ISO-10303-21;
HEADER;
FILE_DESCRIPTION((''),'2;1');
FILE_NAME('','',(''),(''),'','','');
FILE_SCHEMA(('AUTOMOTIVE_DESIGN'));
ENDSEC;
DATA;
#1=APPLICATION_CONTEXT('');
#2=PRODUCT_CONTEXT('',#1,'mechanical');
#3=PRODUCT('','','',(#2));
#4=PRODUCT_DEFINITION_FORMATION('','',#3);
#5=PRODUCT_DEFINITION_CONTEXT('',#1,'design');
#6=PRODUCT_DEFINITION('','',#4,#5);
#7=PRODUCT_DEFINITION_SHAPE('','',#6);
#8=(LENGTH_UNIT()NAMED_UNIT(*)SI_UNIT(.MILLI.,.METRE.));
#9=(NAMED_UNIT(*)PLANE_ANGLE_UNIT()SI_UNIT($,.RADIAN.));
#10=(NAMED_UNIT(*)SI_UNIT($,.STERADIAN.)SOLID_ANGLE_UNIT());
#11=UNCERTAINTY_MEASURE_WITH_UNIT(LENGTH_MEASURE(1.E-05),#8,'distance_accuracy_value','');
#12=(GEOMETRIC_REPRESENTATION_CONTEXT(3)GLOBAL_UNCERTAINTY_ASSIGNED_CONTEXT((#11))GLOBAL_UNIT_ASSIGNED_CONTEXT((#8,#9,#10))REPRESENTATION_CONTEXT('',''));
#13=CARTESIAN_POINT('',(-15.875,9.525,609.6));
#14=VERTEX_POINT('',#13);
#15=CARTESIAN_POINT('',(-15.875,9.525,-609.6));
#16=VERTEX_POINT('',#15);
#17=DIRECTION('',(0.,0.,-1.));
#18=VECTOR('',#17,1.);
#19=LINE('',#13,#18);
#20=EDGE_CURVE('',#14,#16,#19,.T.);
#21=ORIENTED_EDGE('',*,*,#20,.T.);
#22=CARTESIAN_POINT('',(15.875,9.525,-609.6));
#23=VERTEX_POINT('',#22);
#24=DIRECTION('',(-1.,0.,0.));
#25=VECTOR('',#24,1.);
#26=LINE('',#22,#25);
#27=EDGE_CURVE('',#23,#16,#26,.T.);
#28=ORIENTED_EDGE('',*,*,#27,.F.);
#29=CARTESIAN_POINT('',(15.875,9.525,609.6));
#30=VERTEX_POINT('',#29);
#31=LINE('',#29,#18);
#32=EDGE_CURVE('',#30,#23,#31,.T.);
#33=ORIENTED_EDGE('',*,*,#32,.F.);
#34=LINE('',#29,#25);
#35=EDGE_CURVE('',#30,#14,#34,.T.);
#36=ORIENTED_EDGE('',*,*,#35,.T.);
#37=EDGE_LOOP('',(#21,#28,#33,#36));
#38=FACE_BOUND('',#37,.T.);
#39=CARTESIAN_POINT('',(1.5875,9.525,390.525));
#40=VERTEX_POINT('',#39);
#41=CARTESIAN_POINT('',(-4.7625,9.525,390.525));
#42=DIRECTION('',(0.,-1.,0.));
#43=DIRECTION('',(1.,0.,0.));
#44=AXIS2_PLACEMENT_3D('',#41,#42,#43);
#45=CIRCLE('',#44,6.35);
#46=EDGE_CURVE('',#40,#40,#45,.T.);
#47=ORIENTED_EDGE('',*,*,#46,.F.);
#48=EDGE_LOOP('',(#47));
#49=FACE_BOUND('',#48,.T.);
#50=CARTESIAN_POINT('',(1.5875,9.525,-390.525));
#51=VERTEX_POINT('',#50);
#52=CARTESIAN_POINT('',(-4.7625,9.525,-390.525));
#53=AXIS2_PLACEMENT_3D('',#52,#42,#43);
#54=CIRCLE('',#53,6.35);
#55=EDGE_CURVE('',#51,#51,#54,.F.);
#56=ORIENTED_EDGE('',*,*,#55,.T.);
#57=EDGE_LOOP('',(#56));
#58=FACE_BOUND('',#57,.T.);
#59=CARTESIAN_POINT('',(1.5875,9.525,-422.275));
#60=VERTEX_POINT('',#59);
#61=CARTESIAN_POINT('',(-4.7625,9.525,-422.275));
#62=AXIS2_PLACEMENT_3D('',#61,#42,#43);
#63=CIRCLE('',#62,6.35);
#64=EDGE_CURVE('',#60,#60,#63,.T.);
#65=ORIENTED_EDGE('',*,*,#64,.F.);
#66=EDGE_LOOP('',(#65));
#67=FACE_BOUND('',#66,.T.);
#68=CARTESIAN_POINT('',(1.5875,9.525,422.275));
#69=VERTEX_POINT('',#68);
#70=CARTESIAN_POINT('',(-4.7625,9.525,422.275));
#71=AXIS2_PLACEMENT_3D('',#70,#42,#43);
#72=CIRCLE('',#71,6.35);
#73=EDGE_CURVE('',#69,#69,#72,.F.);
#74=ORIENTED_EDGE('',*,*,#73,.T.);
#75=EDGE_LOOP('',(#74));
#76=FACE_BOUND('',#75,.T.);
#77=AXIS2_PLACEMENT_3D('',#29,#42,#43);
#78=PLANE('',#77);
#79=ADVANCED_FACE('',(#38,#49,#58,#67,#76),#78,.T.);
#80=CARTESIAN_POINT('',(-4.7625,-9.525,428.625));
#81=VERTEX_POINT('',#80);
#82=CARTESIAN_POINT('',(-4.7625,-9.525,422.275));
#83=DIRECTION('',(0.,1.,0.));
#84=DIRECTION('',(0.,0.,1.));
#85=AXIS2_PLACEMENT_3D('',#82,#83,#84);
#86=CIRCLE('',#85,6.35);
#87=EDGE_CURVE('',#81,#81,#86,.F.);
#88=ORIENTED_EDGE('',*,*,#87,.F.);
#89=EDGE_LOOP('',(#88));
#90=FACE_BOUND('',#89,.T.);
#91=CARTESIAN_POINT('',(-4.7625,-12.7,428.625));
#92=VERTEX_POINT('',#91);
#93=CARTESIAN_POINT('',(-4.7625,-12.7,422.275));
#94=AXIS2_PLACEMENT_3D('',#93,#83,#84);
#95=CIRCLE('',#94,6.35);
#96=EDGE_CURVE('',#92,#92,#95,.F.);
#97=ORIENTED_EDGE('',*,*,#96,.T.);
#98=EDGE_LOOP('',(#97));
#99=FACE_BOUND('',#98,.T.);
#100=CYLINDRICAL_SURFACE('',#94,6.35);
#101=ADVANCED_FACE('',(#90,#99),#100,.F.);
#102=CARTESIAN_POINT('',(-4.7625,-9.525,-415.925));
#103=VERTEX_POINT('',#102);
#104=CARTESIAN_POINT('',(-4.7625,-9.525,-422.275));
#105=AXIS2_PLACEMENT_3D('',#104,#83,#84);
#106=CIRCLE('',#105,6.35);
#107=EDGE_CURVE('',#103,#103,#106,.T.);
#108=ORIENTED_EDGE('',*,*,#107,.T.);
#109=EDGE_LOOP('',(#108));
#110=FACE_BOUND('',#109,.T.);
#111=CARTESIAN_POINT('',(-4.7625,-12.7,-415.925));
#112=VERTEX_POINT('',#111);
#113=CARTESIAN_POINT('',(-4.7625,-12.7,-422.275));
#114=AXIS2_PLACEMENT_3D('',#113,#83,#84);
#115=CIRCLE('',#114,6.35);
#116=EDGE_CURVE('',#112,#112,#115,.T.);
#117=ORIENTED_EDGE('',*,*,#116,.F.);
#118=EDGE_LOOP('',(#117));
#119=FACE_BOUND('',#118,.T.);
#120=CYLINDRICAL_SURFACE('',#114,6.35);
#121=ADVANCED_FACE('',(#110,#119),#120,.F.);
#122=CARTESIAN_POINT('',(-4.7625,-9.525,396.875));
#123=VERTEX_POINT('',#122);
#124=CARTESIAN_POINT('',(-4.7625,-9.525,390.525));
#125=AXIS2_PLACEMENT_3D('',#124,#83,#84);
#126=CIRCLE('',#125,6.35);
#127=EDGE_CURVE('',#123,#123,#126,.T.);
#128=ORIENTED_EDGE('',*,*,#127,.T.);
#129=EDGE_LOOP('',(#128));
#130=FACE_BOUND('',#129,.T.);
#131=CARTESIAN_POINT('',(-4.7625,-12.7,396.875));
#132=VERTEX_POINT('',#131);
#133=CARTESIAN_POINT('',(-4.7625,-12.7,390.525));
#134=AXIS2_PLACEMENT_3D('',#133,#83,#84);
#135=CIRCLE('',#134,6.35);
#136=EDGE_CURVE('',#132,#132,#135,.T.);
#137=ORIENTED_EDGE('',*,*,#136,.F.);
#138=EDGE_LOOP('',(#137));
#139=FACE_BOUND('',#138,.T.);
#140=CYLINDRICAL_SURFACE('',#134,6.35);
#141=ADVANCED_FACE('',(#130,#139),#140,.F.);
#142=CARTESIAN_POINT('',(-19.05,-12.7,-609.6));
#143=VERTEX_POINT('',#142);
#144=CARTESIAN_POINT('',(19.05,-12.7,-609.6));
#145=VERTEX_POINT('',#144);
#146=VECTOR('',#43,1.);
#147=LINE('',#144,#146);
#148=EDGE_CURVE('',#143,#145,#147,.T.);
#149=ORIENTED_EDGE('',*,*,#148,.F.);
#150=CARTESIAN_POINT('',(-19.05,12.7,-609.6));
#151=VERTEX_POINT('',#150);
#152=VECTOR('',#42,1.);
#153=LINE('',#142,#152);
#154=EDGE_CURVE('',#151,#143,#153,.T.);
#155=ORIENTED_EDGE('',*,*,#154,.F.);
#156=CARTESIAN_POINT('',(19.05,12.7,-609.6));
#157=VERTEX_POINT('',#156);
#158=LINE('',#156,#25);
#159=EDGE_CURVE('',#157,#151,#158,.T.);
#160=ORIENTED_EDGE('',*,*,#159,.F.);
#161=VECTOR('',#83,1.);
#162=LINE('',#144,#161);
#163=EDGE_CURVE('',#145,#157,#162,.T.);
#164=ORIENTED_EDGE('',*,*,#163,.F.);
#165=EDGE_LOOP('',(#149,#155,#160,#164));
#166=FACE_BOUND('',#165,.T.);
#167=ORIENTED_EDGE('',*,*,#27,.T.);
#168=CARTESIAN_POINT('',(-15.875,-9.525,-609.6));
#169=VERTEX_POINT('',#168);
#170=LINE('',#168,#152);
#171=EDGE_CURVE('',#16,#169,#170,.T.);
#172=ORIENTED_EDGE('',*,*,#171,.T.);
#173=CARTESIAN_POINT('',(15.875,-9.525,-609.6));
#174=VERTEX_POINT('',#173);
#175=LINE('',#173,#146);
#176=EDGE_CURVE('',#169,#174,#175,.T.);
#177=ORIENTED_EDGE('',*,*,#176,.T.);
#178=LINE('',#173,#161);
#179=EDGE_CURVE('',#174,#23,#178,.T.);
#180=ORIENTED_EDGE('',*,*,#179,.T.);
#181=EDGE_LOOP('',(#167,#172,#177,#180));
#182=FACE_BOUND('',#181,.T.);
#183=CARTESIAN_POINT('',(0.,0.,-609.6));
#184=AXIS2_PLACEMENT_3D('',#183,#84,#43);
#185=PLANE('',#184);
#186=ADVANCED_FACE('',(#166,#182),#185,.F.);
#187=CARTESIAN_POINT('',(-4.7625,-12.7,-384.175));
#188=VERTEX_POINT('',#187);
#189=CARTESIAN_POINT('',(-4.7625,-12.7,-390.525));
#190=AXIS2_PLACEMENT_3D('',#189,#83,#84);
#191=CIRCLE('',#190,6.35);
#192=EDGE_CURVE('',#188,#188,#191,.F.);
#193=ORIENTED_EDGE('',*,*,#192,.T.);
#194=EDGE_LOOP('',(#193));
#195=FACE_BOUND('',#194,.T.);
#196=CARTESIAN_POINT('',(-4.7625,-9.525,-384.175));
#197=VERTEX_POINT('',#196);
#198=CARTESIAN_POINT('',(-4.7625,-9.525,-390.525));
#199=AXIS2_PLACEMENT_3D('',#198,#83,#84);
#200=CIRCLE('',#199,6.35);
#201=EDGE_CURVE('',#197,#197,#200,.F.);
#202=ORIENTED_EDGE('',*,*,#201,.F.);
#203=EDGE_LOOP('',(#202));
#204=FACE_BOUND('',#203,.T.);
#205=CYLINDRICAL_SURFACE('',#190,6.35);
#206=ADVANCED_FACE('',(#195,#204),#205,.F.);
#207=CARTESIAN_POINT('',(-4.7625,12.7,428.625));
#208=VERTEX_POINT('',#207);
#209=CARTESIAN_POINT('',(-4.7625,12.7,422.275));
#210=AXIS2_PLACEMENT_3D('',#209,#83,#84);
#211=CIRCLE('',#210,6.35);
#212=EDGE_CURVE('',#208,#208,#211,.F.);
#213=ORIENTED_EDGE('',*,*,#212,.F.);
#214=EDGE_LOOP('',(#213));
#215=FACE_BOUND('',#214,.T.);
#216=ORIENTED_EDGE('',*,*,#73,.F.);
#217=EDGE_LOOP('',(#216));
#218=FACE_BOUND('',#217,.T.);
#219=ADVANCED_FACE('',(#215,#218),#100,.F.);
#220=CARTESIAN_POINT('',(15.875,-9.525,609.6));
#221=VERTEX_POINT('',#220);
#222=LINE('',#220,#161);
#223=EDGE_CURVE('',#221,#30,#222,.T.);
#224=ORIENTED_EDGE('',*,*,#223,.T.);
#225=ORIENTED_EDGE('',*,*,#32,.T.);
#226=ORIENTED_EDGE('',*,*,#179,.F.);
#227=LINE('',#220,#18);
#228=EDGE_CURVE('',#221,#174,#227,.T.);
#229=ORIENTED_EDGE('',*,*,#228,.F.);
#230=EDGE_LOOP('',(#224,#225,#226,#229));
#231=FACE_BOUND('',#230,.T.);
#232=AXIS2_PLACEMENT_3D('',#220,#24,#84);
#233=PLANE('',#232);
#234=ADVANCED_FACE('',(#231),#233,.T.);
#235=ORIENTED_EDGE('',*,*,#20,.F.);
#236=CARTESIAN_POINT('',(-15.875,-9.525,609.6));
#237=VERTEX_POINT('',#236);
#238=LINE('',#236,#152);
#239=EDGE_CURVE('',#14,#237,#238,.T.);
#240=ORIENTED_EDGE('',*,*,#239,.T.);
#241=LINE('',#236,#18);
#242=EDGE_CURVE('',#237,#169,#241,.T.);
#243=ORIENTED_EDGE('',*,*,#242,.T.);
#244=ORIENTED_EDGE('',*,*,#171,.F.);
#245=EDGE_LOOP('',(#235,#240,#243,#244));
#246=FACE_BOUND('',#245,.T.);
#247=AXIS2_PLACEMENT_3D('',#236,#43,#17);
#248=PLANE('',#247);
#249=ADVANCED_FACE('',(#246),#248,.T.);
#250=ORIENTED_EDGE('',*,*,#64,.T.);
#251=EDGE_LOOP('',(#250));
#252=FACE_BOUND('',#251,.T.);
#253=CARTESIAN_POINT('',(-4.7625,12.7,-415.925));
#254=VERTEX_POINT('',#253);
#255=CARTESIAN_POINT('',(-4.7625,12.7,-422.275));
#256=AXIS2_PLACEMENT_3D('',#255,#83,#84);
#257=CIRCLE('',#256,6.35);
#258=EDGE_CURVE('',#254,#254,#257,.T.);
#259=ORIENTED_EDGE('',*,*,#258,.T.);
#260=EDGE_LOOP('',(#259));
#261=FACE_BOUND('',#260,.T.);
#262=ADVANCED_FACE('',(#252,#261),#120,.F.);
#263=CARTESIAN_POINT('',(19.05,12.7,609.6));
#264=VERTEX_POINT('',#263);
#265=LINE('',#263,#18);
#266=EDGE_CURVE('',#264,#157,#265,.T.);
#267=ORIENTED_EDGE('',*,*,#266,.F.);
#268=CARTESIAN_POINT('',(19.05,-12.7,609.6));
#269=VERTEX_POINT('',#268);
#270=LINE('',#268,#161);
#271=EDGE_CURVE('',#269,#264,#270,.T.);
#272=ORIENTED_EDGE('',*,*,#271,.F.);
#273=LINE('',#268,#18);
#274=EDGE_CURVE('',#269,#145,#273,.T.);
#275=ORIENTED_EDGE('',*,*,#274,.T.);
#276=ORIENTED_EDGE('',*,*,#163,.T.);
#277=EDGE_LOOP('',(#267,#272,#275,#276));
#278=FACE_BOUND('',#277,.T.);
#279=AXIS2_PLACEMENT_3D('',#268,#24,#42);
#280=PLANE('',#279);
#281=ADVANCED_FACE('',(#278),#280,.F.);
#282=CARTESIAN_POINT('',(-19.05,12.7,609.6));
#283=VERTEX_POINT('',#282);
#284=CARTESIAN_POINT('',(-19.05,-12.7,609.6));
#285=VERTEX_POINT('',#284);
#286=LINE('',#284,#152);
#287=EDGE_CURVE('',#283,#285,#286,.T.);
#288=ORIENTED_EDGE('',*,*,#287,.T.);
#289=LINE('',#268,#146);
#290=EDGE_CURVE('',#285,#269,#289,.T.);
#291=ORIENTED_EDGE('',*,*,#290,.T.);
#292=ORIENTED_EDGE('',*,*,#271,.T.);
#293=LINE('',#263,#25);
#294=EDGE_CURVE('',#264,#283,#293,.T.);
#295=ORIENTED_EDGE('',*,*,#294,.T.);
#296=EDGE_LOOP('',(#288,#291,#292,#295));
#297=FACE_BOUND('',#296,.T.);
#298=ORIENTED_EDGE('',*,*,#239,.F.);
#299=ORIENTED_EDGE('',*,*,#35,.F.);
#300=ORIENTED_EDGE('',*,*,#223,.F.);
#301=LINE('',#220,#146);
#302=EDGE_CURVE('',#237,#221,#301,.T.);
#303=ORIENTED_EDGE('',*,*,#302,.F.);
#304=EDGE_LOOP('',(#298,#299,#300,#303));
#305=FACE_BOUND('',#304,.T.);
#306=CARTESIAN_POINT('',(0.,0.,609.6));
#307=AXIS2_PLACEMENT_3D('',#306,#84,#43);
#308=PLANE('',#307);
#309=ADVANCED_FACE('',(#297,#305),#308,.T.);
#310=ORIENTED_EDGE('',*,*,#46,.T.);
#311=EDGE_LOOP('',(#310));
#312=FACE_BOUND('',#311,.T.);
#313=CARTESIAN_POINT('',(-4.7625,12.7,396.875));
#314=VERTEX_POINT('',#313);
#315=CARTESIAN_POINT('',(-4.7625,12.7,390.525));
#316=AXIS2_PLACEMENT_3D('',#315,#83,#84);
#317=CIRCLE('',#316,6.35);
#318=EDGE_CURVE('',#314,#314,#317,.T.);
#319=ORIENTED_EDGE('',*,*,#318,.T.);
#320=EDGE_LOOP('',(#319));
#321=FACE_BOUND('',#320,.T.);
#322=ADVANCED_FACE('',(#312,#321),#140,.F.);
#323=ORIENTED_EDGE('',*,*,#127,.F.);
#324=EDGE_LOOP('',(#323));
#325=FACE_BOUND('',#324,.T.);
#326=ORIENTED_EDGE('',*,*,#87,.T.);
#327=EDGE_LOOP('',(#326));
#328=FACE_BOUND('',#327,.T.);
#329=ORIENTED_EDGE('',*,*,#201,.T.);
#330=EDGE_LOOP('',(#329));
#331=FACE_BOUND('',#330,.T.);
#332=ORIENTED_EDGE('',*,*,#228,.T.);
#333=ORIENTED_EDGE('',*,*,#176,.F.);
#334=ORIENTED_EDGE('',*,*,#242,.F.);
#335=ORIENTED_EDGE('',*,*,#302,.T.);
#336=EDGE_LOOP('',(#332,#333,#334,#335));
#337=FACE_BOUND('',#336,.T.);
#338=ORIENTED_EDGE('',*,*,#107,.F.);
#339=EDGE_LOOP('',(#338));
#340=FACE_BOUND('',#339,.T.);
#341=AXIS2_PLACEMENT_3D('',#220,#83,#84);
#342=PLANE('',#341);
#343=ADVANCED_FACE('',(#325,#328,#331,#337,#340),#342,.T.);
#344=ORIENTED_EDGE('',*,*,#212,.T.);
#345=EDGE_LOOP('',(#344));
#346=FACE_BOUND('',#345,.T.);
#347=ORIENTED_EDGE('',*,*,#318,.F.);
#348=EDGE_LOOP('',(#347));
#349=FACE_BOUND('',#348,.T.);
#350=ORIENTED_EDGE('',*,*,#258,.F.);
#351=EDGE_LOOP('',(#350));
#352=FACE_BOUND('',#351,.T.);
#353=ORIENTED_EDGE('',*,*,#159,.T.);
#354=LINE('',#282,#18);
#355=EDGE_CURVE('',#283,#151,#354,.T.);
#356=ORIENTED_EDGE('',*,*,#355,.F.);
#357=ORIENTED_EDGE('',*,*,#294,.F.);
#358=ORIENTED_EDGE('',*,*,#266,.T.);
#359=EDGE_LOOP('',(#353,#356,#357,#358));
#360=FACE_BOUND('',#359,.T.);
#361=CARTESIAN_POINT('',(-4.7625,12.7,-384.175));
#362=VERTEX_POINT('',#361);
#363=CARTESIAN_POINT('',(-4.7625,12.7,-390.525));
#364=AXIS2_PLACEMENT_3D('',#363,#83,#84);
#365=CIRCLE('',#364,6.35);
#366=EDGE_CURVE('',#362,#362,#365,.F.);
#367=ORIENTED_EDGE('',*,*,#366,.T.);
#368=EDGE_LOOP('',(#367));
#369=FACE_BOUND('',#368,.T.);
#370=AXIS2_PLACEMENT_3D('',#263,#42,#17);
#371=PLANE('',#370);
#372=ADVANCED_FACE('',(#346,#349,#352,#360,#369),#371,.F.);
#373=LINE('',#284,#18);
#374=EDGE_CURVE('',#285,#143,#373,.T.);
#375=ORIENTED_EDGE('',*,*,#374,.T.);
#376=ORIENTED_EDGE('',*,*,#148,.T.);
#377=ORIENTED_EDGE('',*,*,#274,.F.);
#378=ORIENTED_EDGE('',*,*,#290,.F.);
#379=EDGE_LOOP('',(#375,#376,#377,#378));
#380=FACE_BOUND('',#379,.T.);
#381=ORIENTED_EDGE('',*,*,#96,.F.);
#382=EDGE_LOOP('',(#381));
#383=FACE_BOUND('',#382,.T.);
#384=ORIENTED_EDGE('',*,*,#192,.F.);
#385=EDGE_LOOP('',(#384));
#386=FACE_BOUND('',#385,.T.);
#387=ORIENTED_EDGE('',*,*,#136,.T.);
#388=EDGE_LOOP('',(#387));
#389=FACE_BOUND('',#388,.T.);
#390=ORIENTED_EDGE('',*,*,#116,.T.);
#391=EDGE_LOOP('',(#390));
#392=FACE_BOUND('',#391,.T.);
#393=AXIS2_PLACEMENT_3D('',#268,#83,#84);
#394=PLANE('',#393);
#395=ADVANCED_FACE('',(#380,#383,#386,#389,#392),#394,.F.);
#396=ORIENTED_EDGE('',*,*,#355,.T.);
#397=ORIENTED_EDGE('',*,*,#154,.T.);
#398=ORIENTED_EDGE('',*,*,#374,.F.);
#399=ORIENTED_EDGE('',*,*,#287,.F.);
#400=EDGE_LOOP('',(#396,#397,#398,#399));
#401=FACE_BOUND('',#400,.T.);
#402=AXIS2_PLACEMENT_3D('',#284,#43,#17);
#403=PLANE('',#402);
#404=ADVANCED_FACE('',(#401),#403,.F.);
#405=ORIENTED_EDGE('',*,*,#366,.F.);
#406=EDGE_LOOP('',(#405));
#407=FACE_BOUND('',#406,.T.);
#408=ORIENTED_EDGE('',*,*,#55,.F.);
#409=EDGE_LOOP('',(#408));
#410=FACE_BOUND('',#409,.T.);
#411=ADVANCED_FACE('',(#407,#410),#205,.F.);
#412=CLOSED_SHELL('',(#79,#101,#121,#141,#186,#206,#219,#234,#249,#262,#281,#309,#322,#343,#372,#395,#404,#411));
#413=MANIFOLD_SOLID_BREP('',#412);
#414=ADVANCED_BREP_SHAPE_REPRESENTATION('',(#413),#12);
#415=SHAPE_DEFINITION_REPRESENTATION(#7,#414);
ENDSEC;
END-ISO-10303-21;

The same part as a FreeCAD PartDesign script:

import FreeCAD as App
import Part
import Sketcher
Q = App.Units.Quantity

doc = App.newDocument("Part")
params = doc.addObject("Spreadsheet::Sheet", "Params")
for row, (alias, value) in enumerate([
    ("sketch1_height", "1 in"),
    ("sketch1_width", "1.5 in"),
    ("sketch1_width2", "1.25 in"),
    ("sketch1_height2", "0.75 in"),
    ("pad1_length", "24 in"),
    ("pad1_length2", "24 in"),
    ("sketch2_diameter", "0.5 in"),
], start=1):
    params.set(f"A{row}", alias)
    params.set(f"B{row}", "=" + value)
    params.setAlias(f"B{row}", alias)

body = doc.addObject("PartDesign::Body", "Body")

# Sketch on XY plane
sketch1 = body.newObject("Sketcher::SketchObject", "Sketch")
sketch1.AttachmentSupport = (doc.getObject("XY_Plane"), [""])
sketch1.MapMode = "FlatFace"
sketch1.addGeometry(Part.LineSegment(App.Vector(-19, 13, 0), App.Vector(-19, -13, 0)), False)
sketch1.addGeometry(Part.LineSegment(App.Vector(-19, -13, 0), App.Vector(19, -13, 0)), False)
sketch1.addGeometry(Part.LineSegment(App.Vector(19, -13, 0), App.Vector(19, 13, 0)), False)
sketch1.addGeometry(Part.LineSegment(App.Vector(19, 13, 0), App.Vector(-19, 13, 0)), False)
sketch1.addGeometry(Part.LineSegment(App.Vector(16, -10, 0), App.Vector(-16, -10, 0)), False)
sketch1.addGeometry(Part.LineSegment(App.Vector(-16, -10, 0), App.Vector(-16, 10, 0)), False)
sketch1.addGeometry(Part.LineSegment(App.Vector(-16, 10, 0), App.Vector(16, 10, 0)), False)
sketch1.addGeometry(Part.LineSegment(App.Vector(16, 10, 0), App.Vector(16, -10, 0)), False)
sketch1.addConstraint(Sketcher.Constraint("Coincident", 0, 2, 1, 1))
sketch1.addConstraint(Sketcher.Constraint("Coincident", 1, 2, 2, 1))
sketch1.addConstraint(Sketcher.Constraint("Coincident", 2, 2, 3, 1))
sketch1.addConstraint(Sketcher.Constraint("Coincident", 3, 2, 0, 1))
sketch1.addConstraint(Sketcher.Constraint("Coincident", 4, 2, 5, 1))
sketch1.addConstraint(Sketcher.Constraint("Coincident", 5, 2, 6, 1))
sketch1.addConstraint(Sketcher.Constraint("Coincident", 6, 2, 7, 1))
sketch1.addConstraint(Sketcher.Constraint("Coincident", 7, 2, 4, 1))
sketch1.addConstraint(Sketcher.Constraint("Vertical", 0))
sketch1.addConstraint(Sketcher.Constraint("Horizontal", 1))
sketch1.addConstraint(Sketcher.Constraint("Vertical", 2))
sketch1.addConstraint(Sketcher.Constraint("Horizontal", 3))
sketch1.addConstraint(Sketcher.Constraint("Horizontal", 4))
sketch1.addConstraint(Sketcher.Constraint("Vertical", 5))
sketch1.addConstraint(Sketcher.Constraint("Horizontal", 6))
sketch1.addConstraint(Sketcher.Constraint("Vertical", 7))
sketch1.addConstraint(Sketcher.Constraint("Symmetric", 0, 2, 2, 2, -1, 1))
sketch1.addConstraint(Sketcher.Constraint("Symmetric", 4, 2, 6, 2, -1, 1))
sketch1.addConstraint(Sketcher.Constraint("DistanceY", 0, 2, 0, 1, Q("1 in")))
sketch1.addConstraint(Sketcher.Constraint("DistanceX", 1, 1, 1, 2, Q("1.5 in")))
sketch1.addConstraint(Sketcher.Constraint("DistanceX", 4, 2, 4, 1, Q("1.25 in")))
sketch1.addConstraint(Sketcher.Constraint("DistanceY", 5, 1, 5, 2, Q("0.75 in")))
sketch1.setExpression("Constraints[18]", "Params.sketch1_height")
sketch1.setExpression("Constraints[19]", "Params.sketch1_width")
sketch1.setExpression("Constraints[20]", "Params.sketch1_width2")
sketch1.setExpression("Constraints[21]", "Params.sketch1_height2")
pad1 = body.newObject("PartDesign::Pad", "Pad")
pad1.Profile = sketch1
pad1.Type = "TwoLengths"
pad1.setExpression("Length", "Params.pad1_length")
pad1.setExpression("Length2", "Params.pad1_length2")

# Sketch on XZ plane
sketch2 = body.newObject("Sketcher::SketchObject", "Sketch001")
sketch2.AttachmentSupport = (doc.getObject("XZ_Plane"), [""])
sketch2.MapMode = "FlatFace"
sketch2.AttachmentOffset = App.Placement(App.Vector(0, 0, -0.5 * 25.4), App.Rotation())
sketch2.addGeometry(Part.Circle(App.Vector(-5, 391, 0), App.Vector(0, 0, 1), 6), False)
sketch2.addGeometry(Part.Circle(App.Vector(-5, 422, 0), App.Vector(0, 0, 1), 6), False)
sketch2.addGeometry(Part.Circle(App.Vector(-5, -422, 0), App.Vector(0, 0, 1), 6), False)
sketch2.addGeometry(Part.Circle(App.Vector(-5, -391, 0), App.Vector(0, 0, 1), 6), False)
sketch2.addConstraint(Sketcher.Constraint("Equal", 0, 1))
sketch2.addConstraint(Sketcher.Constraint("Equal", 1, 2))
sketch2.addConstraint(Sketcher.Constraint("Equal", 2, 3))
sketch2.addConstraint(Sketcher.Constraint("Symmetric", 1, 3, 2, 3, -1))
sketch2.addConstraint(Sketcher.Constraint("Symmetric", 0, 3, 3, 3, -1))
sketch2.addConstraint(Sketcher.Constraint("Vertical", 0, 3, 1, 3))
sketch2.addConstraint(Sketcher.Constraint("Diameter", 0, Q("0.5 in")))
sketch2.addConstraint(Sketcher.Constraint("DistanceY", 2, 3, 0, 3, Q("32 in")))
sketch2.addConstraint(Sketcher.Constraint("DistanceY", 0, 3, 1, 3, Q("1.25 in")))
sketch2.addConstraint(Sketcher.Constraint("DistanceX", 0, 3, -1, 1, Q("0.1875 in")))
sketch2.setExpression("Constraints[6]", "Params.sketch2_diameter")
pocket1 = body.newObject("PartDesign::Pocket", "Pocket")
pocket1.Profile = sketch2
pocket1.Type = "ThroughAll"
pocket1.Reversed = True

doc.recompute()
